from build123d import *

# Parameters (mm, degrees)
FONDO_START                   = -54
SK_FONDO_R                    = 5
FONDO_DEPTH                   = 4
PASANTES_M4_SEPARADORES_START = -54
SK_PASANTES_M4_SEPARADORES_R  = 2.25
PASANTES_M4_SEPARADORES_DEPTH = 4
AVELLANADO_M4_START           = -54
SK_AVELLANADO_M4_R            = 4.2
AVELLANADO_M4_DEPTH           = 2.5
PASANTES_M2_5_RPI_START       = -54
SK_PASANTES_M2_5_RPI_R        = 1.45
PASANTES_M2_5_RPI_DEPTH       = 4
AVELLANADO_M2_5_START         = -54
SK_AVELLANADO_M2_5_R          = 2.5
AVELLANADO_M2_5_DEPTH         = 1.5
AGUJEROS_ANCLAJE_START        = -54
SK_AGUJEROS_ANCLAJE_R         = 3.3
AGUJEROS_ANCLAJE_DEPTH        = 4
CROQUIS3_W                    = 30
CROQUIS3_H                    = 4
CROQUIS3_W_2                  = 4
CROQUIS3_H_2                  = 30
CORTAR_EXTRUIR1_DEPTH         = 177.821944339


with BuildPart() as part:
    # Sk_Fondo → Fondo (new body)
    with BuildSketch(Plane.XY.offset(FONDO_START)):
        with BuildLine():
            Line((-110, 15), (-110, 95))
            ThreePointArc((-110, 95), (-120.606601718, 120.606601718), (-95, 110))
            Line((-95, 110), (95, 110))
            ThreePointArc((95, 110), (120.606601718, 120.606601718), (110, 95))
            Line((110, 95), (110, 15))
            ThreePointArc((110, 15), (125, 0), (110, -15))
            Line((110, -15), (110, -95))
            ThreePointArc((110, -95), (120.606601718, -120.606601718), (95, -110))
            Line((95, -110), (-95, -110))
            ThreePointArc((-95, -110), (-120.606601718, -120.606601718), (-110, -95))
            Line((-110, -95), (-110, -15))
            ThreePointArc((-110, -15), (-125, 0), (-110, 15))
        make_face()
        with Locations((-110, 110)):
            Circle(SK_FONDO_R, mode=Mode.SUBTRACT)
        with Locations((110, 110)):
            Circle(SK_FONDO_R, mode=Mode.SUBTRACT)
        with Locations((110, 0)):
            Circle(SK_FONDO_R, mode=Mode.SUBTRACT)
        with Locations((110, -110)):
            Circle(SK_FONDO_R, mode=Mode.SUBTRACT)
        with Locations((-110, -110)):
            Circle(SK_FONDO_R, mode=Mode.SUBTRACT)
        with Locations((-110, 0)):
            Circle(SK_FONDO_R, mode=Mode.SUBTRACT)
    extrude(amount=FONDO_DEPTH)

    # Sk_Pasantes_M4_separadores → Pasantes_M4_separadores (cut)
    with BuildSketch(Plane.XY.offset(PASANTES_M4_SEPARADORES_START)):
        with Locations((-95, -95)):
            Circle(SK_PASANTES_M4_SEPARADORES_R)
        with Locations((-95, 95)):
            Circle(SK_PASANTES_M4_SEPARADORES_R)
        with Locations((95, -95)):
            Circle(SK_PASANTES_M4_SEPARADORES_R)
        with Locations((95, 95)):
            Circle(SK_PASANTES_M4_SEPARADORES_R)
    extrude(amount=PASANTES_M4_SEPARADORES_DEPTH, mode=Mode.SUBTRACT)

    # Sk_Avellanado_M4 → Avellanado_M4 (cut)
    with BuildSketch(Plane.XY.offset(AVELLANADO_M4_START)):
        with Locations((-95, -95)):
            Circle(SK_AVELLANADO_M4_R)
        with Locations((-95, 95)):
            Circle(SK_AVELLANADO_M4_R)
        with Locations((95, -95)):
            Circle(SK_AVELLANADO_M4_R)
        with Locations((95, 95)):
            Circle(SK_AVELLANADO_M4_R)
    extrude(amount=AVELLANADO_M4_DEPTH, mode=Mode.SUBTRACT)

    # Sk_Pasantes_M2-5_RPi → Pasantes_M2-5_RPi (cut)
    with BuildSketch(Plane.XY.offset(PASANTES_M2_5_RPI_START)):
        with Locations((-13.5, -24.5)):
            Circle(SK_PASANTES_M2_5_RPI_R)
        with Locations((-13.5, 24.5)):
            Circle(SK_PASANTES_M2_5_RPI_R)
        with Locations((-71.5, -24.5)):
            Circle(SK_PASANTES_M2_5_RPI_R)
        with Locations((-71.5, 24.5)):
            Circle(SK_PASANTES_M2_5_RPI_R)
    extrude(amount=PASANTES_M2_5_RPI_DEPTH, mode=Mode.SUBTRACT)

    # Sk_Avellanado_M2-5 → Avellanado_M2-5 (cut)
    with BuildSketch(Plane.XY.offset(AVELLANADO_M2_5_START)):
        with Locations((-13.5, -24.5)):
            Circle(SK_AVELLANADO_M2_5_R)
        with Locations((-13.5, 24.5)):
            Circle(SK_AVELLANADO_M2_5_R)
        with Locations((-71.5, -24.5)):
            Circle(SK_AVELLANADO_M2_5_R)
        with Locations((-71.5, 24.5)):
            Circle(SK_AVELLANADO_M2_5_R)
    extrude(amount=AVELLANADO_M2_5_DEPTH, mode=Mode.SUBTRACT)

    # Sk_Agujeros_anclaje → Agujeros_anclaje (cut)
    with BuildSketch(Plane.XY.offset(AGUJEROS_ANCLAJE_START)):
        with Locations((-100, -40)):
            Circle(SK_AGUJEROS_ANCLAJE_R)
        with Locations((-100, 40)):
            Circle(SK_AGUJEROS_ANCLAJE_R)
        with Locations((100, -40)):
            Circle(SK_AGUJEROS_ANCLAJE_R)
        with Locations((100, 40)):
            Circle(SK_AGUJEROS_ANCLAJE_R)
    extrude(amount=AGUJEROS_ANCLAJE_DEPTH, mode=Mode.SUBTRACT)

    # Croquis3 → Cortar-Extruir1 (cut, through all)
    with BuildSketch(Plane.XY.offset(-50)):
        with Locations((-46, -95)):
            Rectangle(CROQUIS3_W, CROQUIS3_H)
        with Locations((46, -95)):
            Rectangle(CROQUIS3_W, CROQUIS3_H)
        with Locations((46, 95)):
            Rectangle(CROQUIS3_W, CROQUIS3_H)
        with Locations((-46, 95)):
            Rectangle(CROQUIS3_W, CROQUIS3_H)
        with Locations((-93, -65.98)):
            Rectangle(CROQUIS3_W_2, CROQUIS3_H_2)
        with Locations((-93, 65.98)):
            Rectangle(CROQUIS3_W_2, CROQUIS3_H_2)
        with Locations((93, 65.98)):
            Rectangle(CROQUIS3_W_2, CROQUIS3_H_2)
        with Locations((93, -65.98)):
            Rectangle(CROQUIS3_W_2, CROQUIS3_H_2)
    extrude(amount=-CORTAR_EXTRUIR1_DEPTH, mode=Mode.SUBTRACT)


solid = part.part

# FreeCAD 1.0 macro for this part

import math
import FreeCAD as App
import Part
import Sketcher
Q = App.Units.Quantity


def add_polygon(sketch, points):
    """Adds a closed chain of lines whose ends are joined by coincident constraints."""
    first, n = sketch.GeometryCount, len(points)
    for a, b in zip(points, points[1:] + points[:1]):
        sketch.addGeometry(Part.LineSegment(App.Vector(*a, 0), App.Vector(*b, 0)), False)
    for i in range(n):
        sketch.addConstraint(Sketcher.Constraint("Coincident", first + i, 2, first + (i + 1) % n, 1))

doc = App.newDocument("Part")
params = doc.addObject("Spreadsheet::Sheet", "Params")
for row, (alias, value) in enumerate([
    ("sketch1_diameter", "10 mm"),
    ("sketch1_radius", "15 mm"),
    ("sketch1_width", "190 mm"),
    ("sketch1_height", "80 mm"),
    ("pad1_length", "4 mm"),
    ("sketch2_diameter", "4.5 mm"),
    ("pocket1_length", "4 mm"),
    ("sketch3_diameter", "8.4 mm"),
    ("pocket2_length", "2.5 mm"),
    ("sketch4_diameter", "2.9 mm"),
    ("pocket3_length", "4 mm"),
    ("sketch5_diameter", "5 mm"),
    ("pocket4_length", "1.5 mm"),
    ("sketch6_diameter", "6.6 mm"),
    ("pocket5_length", "4 mm"),
    ("sketch7_width", "30 mm"),
    ("sketch7_width2", "4 mm"),
], start=1):
    params.set(f"A{row}", alias)
    params.set(f"B{row}", "=" + value)
    params.setAlias(f"B{row}", alias)

body = doc.addObject("PartDesign::Body", "Body")

# Sketch on XY plane
sketch1 = body.newObject("Sketcher::SketchObject", "Sketch")
sketch1.AttachmentSupport = (doc.getObject("XY_Plane"), [""])
sketch1.MapMode = "FlatFace"
sketch1.AttachmentOffset = App.Placement(App.Vector(0, 0, -54), App.Rotation())
sketch1.addGeometry([
    Part.LineSegment(App.Vector(-110, 95, 0), App.Vector(-110, 15, 0)),  # 0
    Part.ArcOfCircle(Part.Circle(App.Vector(-110, 0, 0), App.Vector(0, 0, 1), 15), math.radians(90), math.radians(270)),  # 1
    Part.LineSegment(App.Vector(-110, -15, 0), App.Vector(-110, -95, 0)),  # 2
    Part.ArcOfCircle(Part.Circle(App.Vector(-110, -110, 0), App.Vector(0, 0, 1), 15), math.radians(90), math.radians(360)),  # 3
    Part.LineSegment(App.Vector(-95, -110, 0), App.Vector(95, -110, 0)),  # 4
    Part.ArcOfCircle(Part.Circle(App.Vector(110, -110, 0), App.Vector(0, 0, 1), 15), math.radians(180), math.radians(450)),  # 5
    Part.LineSegment(App.Vector(110, -95, 0), App.Vector(110, -15, 0)),  # 6
    Part.ArcOfCircle(Part.Circle(App.Vector(110, 0, 0), App.Vector(0, 0, 1), 15), math.radians(-90), math.radians(90)),  # 7
    Part.LineSegment(App.Vector(110, 15, 0), App.Vector(110, 95, 0)),  # 8
    Part.ArcOfCircle(Part.Circle(App.Vector(110, 110, 0), App.Vector(0, 0, 1), 15), math.radians(-90), math.radians(180)),  # 9
    Part.LineSegment(App.Vector(95, 110, 0), App.Vector(-95, 110, 0)),  # 10
    Part.ArcOfCircle(Part.Circle(App.Vector(-110, 110, 0), App.Vector(0, 0, 1), 15), math.radians(0), math.radians(270)),  # 11
    Part.Circle(App.Vector(110, -110, 0), App.Vector(0, 0, 1), 5),  # 12
    Part.Circle(App.Vector(-110, -110, 0), App.Vector(0, 0, 1), 5),  # 13
    Part.Circle(App.Vector(110, 0, 0), App.Vector(0, 0, 1), 5),  # 14
    Part.Circle(App.Vector(110, 110, 0), App.Vector(0, 0, 1), 5),  # 15
    Part.Circle(App.Vector(-110, 0, 0), App.Vector(0, 0, 1), 5),  # 16
    Part.Circle(App.Vector(-110, 110, 0), App.Vector(0, 0, 1), 5),  # 17
], False)
sketch1.addConstraint([
    Sketcher.Constraint("Coincident", 0, 2, 1, 1),
    Sketcher.Constraint("Coincident", 1, 2, 2, 1),
    Sketcher.Constraint("Coincident", 2, 2, 3, 1),
    Sketcher.Constraint("Coincident", 3, 2, 4, 1),
    Sketcher.Constraint("Coincident", 4, 2, 5, 1),
    Sketcher.Constraint("Coincident", 5, 2, 6, 1),
    Sketcher.Constraint("Coincident", 6, 2, 7, 1),
    Sketcher.Constraint("Coincident", 7, 2, 8, 1),
    Sketcher.Constraint("Coincident", 8, 2, 9, 1),
    Sketcher.Constraint("Coincident", 9, 2, 10, 1),
    Sketcher.Constraint("Coincident", 10, 2, 11, 1),
    Sketcher.Constraint("Coincident", 11, 2, 0, 1),
    Sketcher.Constraint("Vertical", 0),
    Sketcher.Constraint("Vertical", 2),
    Sketcher.Constraint("Horizontal", 4),
    Sketcher.Constraint("Vertical", 6),
    Sketcher.Constraint("Vertical", 8),
    Sketcher.Constraint("Horizontal", 10),
    Sketcher.Constraint("Coincident", 12, 3, 5, 3),
    Sketcher.Constraint("Coincident", 13, 3, 3, 3),
    Sketcher.Constraint("Coincident", 14, 3, 7, 3),
    Sketcher.Constraint("Coincident", 15, 3, 9, 3),
    Sketcher.Constraint("Coincident", 16, 3, 1, 3),
    Sketcher.Constraint("Coincident", 17, 3, 11, 3),
    Sketcher.Constraint("Equal", 1, 3),
    Sketcher.Constraint("Equal", 3, 5),
    Sketcher.Constraint("Equal", 5, 7),
    Sketcher.Constraint("Equal", 7, 9),
    Sketcher.Constraint("Equal", 9, 11),
    Sketcher.Constraint("Equal", 12, 13),
    Sketcher.Constraint("Equal", 13, 14),
    Sketcher.Constraint("Equal", 14, 15),
    Sketcher.Constraint("Equal", 15, 16),
    Sketcher.Constraint("Equal", 16, 17),
    Sketcher.Constraint("Symmetric", 1, 3, 7, 3, -1, 1),
    Sketcher.Constraint("Symmetric", 3, 3, 9, 3, -1, 1),
    Sketcher.Constraint("Symmetric", 5, 3, 11, 3, -1, 1),
    Sketcher.Constraint("Symmetric", 3, 3, 5, 3, -2),
    Sketcher.Constraint("Symmetric", 1, 2, 6, 2, -2),
    Sketcher.Constraint("Horizontal", 13, 3, 3, 2),
    Sketcher.Constraint("Horizontal", 17, 3, 9, 2),
    Sketcher.Constraint("Vertical", 1, 3, 3, 3),
    Sketcher.Constraint("Vertical", 17, 3, 0, 2),
    Sketcher.Constraint("Vertical", 0, 2, 1, 2),
    Sketcher.Constraint("Vertical", 6, 2, 7, 2),
    Sketcher.Constraint("Diameter", 12, Q("10 mm")),
    Sketcher.Constraint("Radius", 1, Q("15 mm")),
    Sketcher.Constraint("DistanceX", 4, 1, 4, 2, Q("190 mm")),
    Sketcher.Constraint("DistanceY", 0, 2, 0, 1, Q("80 mm")),
])
sketch1.setExpression("Constraints[45]", "Params.sketch1_diameter")
sketch1.setExpression("Constraints[46]", "Params.sketch1_radius")
sketch1.setExpression("Constraints[47]", "Params.sketch1_width")
sketch1.setExpression("Constraints[48]", "Params.sketch1_height")
pad1 = body.newObject("PartDesign::Pad", "Pad")
pad1.Profile = sketch1
pad1.setExpression("Length", "Params.pad1_length")

# Sketch on XY plane
sketch2 = body.newObject("Sketcher::SketchObject", "Sketch001")
sketch2.AttachmentSupport = (doc.getObject("XY_Plane"), [""])
sketch2.MapMode = "FlatFace"
sketch2.AttachmentOffset = App.Placement(App.Vector(0, 0, -54), App.Rotation())
sketch2.addGeometry([
    Part.Circle(App.Vector(-95, -95, 0), App.Vector(0, 0, 1), 2.2),
    Part.Circle(App.Vector(-95, 95, 0), App.Vector(0, 0, 1), 2.2),
    Part.Circle(App.Vector(95, -95, 0), App.Vector(0, 0, 1), 2.2),
    Part.Circle(App.Vector(95, 95, 0), App.Vector(0, 0, 1), 2.2),
], False)
sketch2.addConstraint([
    Sketcher.Constraint("Equal", 0, 1),
    Sketcher.Constraint("Equal", 1, 2),
    Sketcher.Constraint("Equal", 2, 3),
    Sketcher.Constraint("Symmetric", 1, 3, 2, 3, -1, 1),
    Sketcher.Constraint("Symmetric", 0, 3, 3, 3, -1, 1),
    Sketcher.Constraint("Symmetric", 0, 3, 2, 3, -2),
    Sketcher.Constraint("Diameter", 0, Q("4.5 mm")),
    Sketcher.Constraint("DistanceX", 0, 3, -1, 1, Q("95 mm")),
    Sketcher.Constraint("DistanceY", 0, 3, -1, 1, Q("95 mm")),
])
sketch2.setExpression("Constraints[6]", "Params.sketch2_diameter")
pocket1 = body.newObject("PartDesign::Pocket", "Pocket")
pocket1.Profile = sketch2
pocket1.setExpression("Length", "Params.pocket1_length")
pocket1.Reversed = True

# Sketch on XY plane
sketch3 = body.newObject("Sketcher::SketchObject", "Sketch002")
sketch3.AttachmentSupport = (doc.getObject("XY_Plane"), [""])
sketch3.MapMode = "FlatFace"
sketch3.AttachmentOffset = App.Placement(App.Vector(0, 0, -54), App.Rotation())
sketch3.addGeometry([
    Part.Circle(App.Vector(-95, -95, 0), App.Vector(0, 0, 1), 4.2),
    Part.Circle(App.Vector(-95, 95, 0), App.Vector(0, 0, 1), 4.2),
    Part.Circle(App.Vector(95, -95, 0), App.Vector(0, 0, 1), 4.2),
    Part.Circle(App.Vector(95, 95, 0), App.Vector(0, 0, 1), 4.2),
], False)
sketch3.addConstraint([
    Sketcher.Constraint("Equal", 0, 1),
    Sketcher.Constraint("Equal", 1, 2),
    Sketcher.Constraint("Equal", 2, 3),
    Sketcher.Constraint("Symmetric", 1, 3, 2, 3, -1, 1),
    Sketcher.Constraint("Symmetric", 0, 3, 3, 3, -1, 1),
    Sketcher.Constraint("Symmetric", 0, 3, 2, 3, -2),
    Sketcher.Constraint("Diameter", 0, Q("8.4 mm")),
    Sketcher.Constraint("DistanceX", 0, 3, -1, 1, Q("95 mm")),
    Sketcher.Constraint("DistanceY", 0, 3, -1, 1, Q("95 mm")),
])
sketch3.setExpression("Constraints[6]", "Params.sketch3_diameter")
pocket2 = body.newObject("PartDesign::Pocket", "Pocket001")
pocket2.Profile = sketch3
pocket2.setExpression("Length", "Params.pocket2_length")
pocket2.Reversed = True

# Sketch on XY plane
sketch4 = body.newObject("Sketcher::SketchObject", "Sketch003")
sketch4.AttachmentSupport = (doc.getObject("XY_Plane"), [""])
sketch4.MapMode = "FlatFace"
sketch4.AttachmentOffset = App.Placement(App.Vector(0, 0, -54), App.Rotation())
sketch4.addGeometry([
    Part.Circle(App.Vector(-13.5, -24.5, 0), App.Vector(0, 0, 1), 1.4),
    Part.Circle(App.Vector(-13.5, 24.5, 0), App.Vector(0, 0, 1), 1.4),
    Part.Circle(App.Vector(-71.5, -24.5, 0), App.Vector(0, 0, 1), 1.4),
    Part.Circle(App.Vector(-71.5, 24.5, 0), App.Vector(0, 0, 1), 1.4),
], False)
sketch4.addConstraint([
    Sketcher.Constraint("Equal", 0, 1),
    Sketcher.Constraint("Equal", 1, 2),
    Sketcher.Constraint("Equal", 2, 3),
    Sketcher.Constraint("Symmetric", 0, 3, 1, 3, -1),
    Sketcher.Constraint("Symmetric", 2, 3, 3, 3, -1),
    Sketcher.Constraint("Horizontal", 0, 3, 2, 3),
    Sketcher.Constraint("Diameter", 0, Q("2.9 mm")),
    Sketcher.Constraint("DistanceY", 0, 3, 1, 3, Q("49 mm")),
    Sketcher.Constraint("DistanceX", 2, 3, 0, 3, Q("58 mm")),
    Sketcher.Constraint("DistanceX", 0, 3, -1, 1, Q("13.5 mm")),
])
sketch4.setExpression("Constraints[6]", "Params.sketch4_diameter")
pocket3 = body.newObject("PartDesign::Pocket", "Pocket002")
pocket3.Profile = sketch4
pocket3.setExpression("Length", "Params.pocket3_length")
pocket3.Reversed = True

# Sketch on XY plane
sketch5 = body.newObject("Sketcher::SketchObject", "Sketch004")
sketch5.AttachmentSupport = (doc.getObject("XY_Plane"), [""])
sketch5.MapMode = "FlatFace"
sketch5.AttachmentOffset = App.Placement(App.Vector(0, 0, -54), App.Rotation())
sketch5.addGeometry([
    Part.Circle(App.Vector(-13.5, -24.5, 0), App.Vector(0, 0, 1), 2.5),
    Part.Circle(App.Vector(-13.5, 24.5, 0), App.Vector(0, 0, 1), 2.5),
    Part.Circle(App.Vector(-71.5, -24.5, 0), App.Vector(0, 0, 1), 2.5),
    Part.Circle(App.Vector(-71.5, 24.5, 0), App.Vector(0, 0, 1), 2.5),
], False)
sketch5.addConstraint([
    Sketcher.Constraint("Equal", 0, 1),
    Sketcher.Constraint("Equal", 1, 2),
    Sketcher.Constraint("Equal", 2, 3),
    Sketcher.Constraint("Symmetric", 0, 3, 1, 3, -1),
    Sketcher.Constraint("Symmetric", 2, 3, 3, 3, -1),
    Sketcher.Constraint("Horizontal", 0, 3, 2, 3),
    Sketcher.Constraint("Diameter", 0, Q("5 mm")),
    Sketcher.Constraint("DistanceY", 0, 3, 1, 3, Q("49 mm")),
    Sketcher.Constraint("DistanceX", 2, 3, 0, 3, Q("58 mm")),
    Sketcher.Constraint("DistanceX", 0, 3, -1, 1, Q("13.5 mm")),
])
sketch5.setExpression("Constraints[6]", "Params.sketch5_diameter")
pocket4 = body.newObject("PartDesign::Pocket", "Pocket003")
pocket4.Profile = sketch5
pocket4.setExpression("Length", "Params.pocket4_length")
pocket4.Reversed = True

# Sketch on XY plane
sketch6 = body.newObject("Sketcher::SketchObject", "Sketch005")
sketch6.AttachmentSupport = (doc.getObject("XY_Plane"), [""])
sketch6.MapMode = "FlatFace"
sketch6.AttachmentOffset = App.Placement(App.Vector(0, 0, -54), App.Rotation())
sketch6.addGeometry([
    Part.Circle(App.Vector(-100, -40, 0), App.Vector(0, 0, 1), 3.3),
    Part.Circle(App.Vector(-100, 40, 0), App.Vector(0, 0, 1), 3.3),
    Part.Circle(App.Vector(100, -40, 0), App.Vector(0, 0, 1), 3.3),
    Part.Circle(App.Vector(100, 40, 0), App.Vector(0, 0, 1), 3.3),
], False)
sketch6.addConstraint([
    Sketcher.Constraint("Equal", 0, 1),
    Sketcher.Constraint("Equal", 1, 2),
    Sketcher.Constraint("Equal", 2, 3),
    Sketcher.Constraint("Symmetric", 1, 3, 2, 3, -1, 1),
    Sketcher.Constraint("Symmetric", 0, 3, 3, 3, -1, 1),
    Sketcher.Constraint("Symmetric", 0, 3, 2, 3, -2),
    Sketcher.Constraint("Diameter", 0, Q("6.6 mm")),
    Sketcher.Constraint("DistanceX", 0, 3, -1, 1, Q("100 mm")),
    Sketcher.Constraint("DistanceY", 0, 3, -1, 1, Q("40 mm")),
])
sketch6.setExpression("Constraints[6]", "Params.sketch6_diameter")
pocket5 = body.newObject("PartDesign::Pocket", "Pocket004")
pocket5.Profile = sketch6
pocket5.setExpression("Length", "Params.pocket5_length")
pocket5.Reversed = True

# Sketch on XY plane
sketch7 = body.newObject("Sketcher::SketchObject", "Sketch006")
sketch7.AttachmentSupport = (doc.getObject("XY_Plane"), [""])
sketch7.MapMode = "FlatFace"
sketch7.AttachmentOffset = App.Placement(App.Vector(0, 0, -50), App.Rotation())
add_polygon(sketch7, [(-61, -93), (-61, -97), (-31, -97), (-31, -93)])  # lines 0-3
add_polygon(sketch7, [(31, -93), (31, -97), (61, -97), (61, -93)])  # lines 4-7
add_polygon(sketch7, [(31, 97), (31, 93), (61, 93), (61, 97)])  # lines 8-11
add_polygon(sketch7, [(-61, 97), (-61, 93), (-31, 93), (-31, 97)])  # lines 12-15
add_polygon(sketch7, [(-95, -51), (-95, -81), (-91, -81), (-91, -51)])  # lines 16-19
add_polygon(sketch7, [(-95, 81), (-95, 51), (-91, 51), (-91, 81)])  # lines 20-23
add_polygon(sketch7, [(91, 81), (91, 51), (95, 51), (95, 81)])  # lines 24-27
add_polygon(sketch7, [(91, -51), (91, -81), (95, -81), (95, -51)])  # lines 28-31
sketch7.addConstraint([
    Sketcher.Constraint("Vertical", 0),
    Sketcher.Constraint("Horizontal", 1),
    Sketcher.Constraint("Vertical", 2),
    Sketcher.Constraint("Horizontal", 3),
    Sketcher.Constraint("Vertical", 4),
    Sketcher.Constraint("Horizontal", 5),
    Sketcher.Constraint("Vertical", 6),
    Sketcher.Constraint("Horizontal", 7),
    Sketcher.Constraint("Vertical", 8),
    Sketcher.Constraint("Horizontal", 9),
    Sketcher.Constraint("Vertical", 10),
    Sketcher.Constraint("Horizontal", 11),
    Sketcher.Constraint("Vertical", 12),
    Sketcher.Constraint("Horizontal", 13),
    Sketcher.Constraint("Vertical", 14),
    Sketcher.Constraint("Horizontal", 15),
    Sketcher.Constraint("Vertical", 16),
    Sketcher.Constraint("Horizontal", 17),
    Sketcher.Constraint("Vertical", 18),
    Sketcher.Constraint("Horizontal", 19),
    Sketcher.Constraint("Vertical", 20),
    Sketcher.Constraint("Horizontal", 21),
    Sketcher.Constraint("Vertical", 22),
    Sketcher.Constraint("Horizontal", 23),
    Sketcher.Constraint("Vertical", 24),
    Sketcher.Constraint("Horizontal", 25),
    Sketcher.Constraint("Vertical", 26),
    Sketcher.Constraint("Horizontal", 27),
    Sketcher.Constraint("Vertical", 28),
    Sketcher.Constraint("Horizontal", 29),
    Sketcher.Constraint("Vertical", 30),
    Sketcher.Constraint("Horizontal", 31),
    Sketcher.Constraint("Symmetric", 2, 2, 8, 2, -1, 1),
    Sketcher.Constraint("Symmetric", 0, 2, 10, 2, -1, 1),
    Sketcher.Constraint("Symmetric", 6, 2, 12, 2, -1, 1),
    Sketcher.Constraint("Symmetric", 4, 2, 14, 2, -1, 1),
    Sketcher.Constraint("Symmetric", 18, 2, 24, 2, -1, 1),
    Sketcher.Constraint("Symmetric", 16, 2, 26, 2, -1, 1),
    Sketcher.Constraint("Symmetric", 22, 2, 28, 2, -1, 1),
    Sketcher.Constraint("Symmetric", 20, 2, 30, 2, -1, 1),
    Sketcher.Constraint("Symmetric", 1, 2, 4, 2, -2),
    Sketcher.Constraint("Symmetric", 3, 2, 6, 2, -2),
    Sketcher.Constraint("Symmetric", 21, 2, 24, 2, -2),
    Sketcher.Constraint("Symmetric", 23, 2, 26, 2, -2),
    Sketcher.Constraint("Equal", 31, 0),
    Sketcher.Constraint("Equal", 15, 16),
    Sketcher.Constraint("DistanceX", 1, 1, 1, 2, Q("30 mm")),
    Sketcher.Constraint("DistanceX", 17, 1, 17, 2, Q("4 mm")),
    Sketcher.Constraint("DistanceX", 0, 2, -1, 1, Q("61 mm")),
    Sketcher.Constraint("DistanceY", 0, 2, -1, 1, Q("97 mm")),
    Sketcher.Constraint("DistanceX", 16, 2, -1, 1, Q("95 mm")),
    Sketcher.Constraint("DistanceY", 16, 2, -1, 1, Q("80.98 mm")),
])
sketch7.setExpression("Constraints[78]", "Params.sketch7_width")
sketch7.setExpression("Constraints[79]", "Params.sketch7_width2")
pocket6 = body.newObject("PartDesign::Pocket", "Pocket005")
pocket6.Profile = sketch7
pocket6.Type = "ThroughAll"

doc.recompute()
